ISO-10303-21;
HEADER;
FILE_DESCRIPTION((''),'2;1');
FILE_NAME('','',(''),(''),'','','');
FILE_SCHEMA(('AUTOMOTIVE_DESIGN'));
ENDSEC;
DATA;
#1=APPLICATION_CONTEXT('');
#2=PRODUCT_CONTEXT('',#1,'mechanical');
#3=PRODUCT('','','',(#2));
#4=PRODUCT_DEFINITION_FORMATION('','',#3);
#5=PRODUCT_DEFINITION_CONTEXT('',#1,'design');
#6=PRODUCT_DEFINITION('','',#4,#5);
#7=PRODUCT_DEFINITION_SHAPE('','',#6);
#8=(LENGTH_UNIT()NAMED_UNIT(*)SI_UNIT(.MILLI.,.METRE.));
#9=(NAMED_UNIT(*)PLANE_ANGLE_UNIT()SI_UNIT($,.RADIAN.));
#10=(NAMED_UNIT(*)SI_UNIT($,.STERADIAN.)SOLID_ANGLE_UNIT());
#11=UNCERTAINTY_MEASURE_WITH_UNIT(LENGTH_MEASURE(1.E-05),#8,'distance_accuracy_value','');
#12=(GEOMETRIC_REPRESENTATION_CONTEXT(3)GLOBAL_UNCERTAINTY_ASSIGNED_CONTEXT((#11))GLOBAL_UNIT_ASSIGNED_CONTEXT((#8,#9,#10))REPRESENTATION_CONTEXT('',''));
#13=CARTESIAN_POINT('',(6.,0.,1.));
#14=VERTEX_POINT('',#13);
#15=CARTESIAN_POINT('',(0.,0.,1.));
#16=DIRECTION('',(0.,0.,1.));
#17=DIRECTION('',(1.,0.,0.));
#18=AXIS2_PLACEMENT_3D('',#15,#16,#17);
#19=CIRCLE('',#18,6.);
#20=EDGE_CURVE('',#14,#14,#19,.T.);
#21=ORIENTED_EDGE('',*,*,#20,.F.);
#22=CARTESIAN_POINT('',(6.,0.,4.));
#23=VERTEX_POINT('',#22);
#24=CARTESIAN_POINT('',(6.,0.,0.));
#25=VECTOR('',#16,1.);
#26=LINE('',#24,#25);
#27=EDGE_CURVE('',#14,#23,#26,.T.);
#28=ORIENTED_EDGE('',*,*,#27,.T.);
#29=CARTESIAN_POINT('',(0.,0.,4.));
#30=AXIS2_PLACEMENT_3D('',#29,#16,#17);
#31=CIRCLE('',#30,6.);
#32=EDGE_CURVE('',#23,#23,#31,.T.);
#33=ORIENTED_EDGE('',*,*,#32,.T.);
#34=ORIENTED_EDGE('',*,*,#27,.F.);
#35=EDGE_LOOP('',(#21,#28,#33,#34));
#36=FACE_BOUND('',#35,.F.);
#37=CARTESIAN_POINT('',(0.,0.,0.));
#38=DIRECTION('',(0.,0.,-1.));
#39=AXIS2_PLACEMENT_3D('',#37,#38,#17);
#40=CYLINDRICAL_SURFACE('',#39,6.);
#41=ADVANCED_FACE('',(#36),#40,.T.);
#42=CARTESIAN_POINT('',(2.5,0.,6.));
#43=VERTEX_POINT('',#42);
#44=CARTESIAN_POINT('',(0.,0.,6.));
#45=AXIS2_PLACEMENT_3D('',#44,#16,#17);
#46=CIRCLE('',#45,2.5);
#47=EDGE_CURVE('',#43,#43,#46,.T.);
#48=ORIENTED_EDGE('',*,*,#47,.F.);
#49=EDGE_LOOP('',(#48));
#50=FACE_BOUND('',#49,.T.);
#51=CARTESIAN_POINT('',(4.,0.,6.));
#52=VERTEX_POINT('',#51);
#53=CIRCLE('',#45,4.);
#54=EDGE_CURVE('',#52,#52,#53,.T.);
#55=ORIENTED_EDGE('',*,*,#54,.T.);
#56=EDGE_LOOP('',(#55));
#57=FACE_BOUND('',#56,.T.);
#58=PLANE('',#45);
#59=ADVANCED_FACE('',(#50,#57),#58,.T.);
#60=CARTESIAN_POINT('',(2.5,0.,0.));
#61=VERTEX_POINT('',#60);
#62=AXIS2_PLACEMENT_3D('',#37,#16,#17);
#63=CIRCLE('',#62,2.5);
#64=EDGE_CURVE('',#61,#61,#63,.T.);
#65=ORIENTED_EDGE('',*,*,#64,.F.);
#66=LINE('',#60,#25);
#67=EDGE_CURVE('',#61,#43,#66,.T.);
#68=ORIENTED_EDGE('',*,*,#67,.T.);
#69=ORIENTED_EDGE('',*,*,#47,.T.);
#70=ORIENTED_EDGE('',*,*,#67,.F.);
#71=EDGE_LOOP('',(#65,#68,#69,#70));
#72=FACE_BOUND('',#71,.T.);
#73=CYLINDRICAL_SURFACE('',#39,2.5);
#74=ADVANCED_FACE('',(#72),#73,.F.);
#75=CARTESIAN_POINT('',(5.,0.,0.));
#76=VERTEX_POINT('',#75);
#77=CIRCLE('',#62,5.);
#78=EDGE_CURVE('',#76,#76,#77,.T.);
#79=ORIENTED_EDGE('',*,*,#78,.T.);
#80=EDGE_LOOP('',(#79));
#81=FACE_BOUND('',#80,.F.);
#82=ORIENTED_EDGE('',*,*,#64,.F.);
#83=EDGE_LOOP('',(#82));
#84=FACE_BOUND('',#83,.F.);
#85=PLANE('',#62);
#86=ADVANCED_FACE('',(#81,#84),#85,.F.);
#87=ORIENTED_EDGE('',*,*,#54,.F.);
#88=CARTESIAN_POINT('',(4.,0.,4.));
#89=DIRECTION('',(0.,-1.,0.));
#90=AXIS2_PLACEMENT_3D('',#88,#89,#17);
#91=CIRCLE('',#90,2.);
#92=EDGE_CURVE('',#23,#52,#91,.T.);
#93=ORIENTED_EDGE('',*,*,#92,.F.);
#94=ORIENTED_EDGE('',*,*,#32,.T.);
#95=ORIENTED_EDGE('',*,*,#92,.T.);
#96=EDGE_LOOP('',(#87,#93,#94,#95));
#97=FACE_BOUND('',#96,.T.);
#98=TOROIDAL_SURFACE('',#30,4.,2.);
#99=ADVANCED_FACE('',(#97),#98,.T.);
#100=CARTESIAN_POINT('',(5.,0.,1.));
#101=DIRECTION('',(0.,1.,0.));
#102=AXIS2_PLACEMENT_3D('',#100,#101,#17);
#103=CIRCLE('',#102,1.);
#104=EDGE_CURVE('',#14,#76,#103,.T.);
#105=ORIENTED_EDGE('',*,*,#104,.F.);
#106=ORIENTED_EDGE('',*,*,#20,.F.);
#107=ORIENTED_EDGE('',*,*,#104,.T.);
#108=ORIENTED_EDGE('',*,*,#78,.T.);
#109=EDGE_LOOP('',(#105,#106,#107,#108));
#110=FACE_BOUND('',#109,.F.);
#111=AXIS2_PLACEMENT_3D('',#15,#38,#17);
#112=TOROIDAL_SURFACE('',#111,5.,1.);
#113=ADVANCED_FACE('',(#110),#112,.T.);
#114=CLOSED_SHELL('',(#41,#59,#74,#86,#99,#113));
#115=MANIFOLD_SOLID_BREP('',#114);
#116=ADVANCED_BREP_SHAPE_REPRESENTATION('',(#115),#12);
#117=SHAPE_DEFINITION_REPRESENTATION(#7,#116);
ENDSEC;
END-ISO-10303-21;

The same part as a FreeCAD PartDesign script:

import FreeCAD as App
import Part
import Sketcher

V = App.Vector
Q = App.Units.Quantity


def edges_at(feature, points):
    """Names of the edges that pass closest to the given points."""
    edges = feature.Shape.Edges
    near = lambda p: min(range(len(edges)), key=lambda i: edges[i].distToShape(Part.Vertex(*p))[0])
    return sorted({f"Edge{near(p) + 1}" for p in points})

doc = App.newDocument("Part")
params = doc.addObject("Spreadsheet::Sheet", "Params")
for row, (alias, value) in enumerate([
    ("sketch1_diameter", "12 mm"),
    ("sketch1_diameter2", "5 mm"),
    ("pad1_length", "6 mm"),
    ("fillet_radius", "2 mm"),
    ("fillet2_radius", "1 mm"),
], start=1):
    params.set(f"A{row}", alias)
    params.set(f"B{row}", "=" + value)
    params.setAlias(f"B{row}", alias)

body = doc.addObject("PartDesign::Body", "Body")

# Sketch on XY plane
sketch1 = body.newObject("Sketcher::SketchObject", "Sketch")
sketch1.AttachmentSupport = (doc.getObject("XY_Plane"), [""])
sketch1.MapMode = "FlatFace"
sketch1.addGeometry(Part.Circle(V(0, 0, 0), V(0, 0, 1), 6), False)
sketch1.addGeometry(Part.Circle(V(0, 0, 0), V(0, 0, 1), 2.5), False)
sketch1.addConstraint(Sketcher.Constraint("Coincident", 0, 3, -1, 1))
sketch1.addConstraint(Sketcher.Constraint("Coincident", 1, 3, -1, 1))
sketch1.addConstraint(Sketcher.Constraint("Diameter", 0, Q("12 mm")))
sketch1.addConstraint(Sketcher.Constraint("Diameter", 1, Q("5 mm")))
sketch1.setExpression("Constraints[2]", "Params.sketch1_diameter")
sketch1.setExpression("Constraints[3]", "Params.sketch1_diameter2")
pad1 = body.newObject("PartDesign::Pad", "Pad")
pad1.Profile = sketch1
pad1.setExpression("Length", "Params.pad1_length")
doc.recompute()

fillet = body.newObject("PartDesign::Fillet", "Fillet")
fillet.Base = (pad1, edges_at(pad1, [(-6, 0, 6)]))
fillet.setExpression("Radius", "Params.fillet_radius")
doc.recompute()

fillet2 = body.newObject("PartDesign::Fillet", "Fillet001")
fillet2.Base = (fillet, edges_at(fillet, [(-6, 0, 0)]))
fillet2.setExpression("Radius", "Params.fillet2_radius")

doc.recompute()
